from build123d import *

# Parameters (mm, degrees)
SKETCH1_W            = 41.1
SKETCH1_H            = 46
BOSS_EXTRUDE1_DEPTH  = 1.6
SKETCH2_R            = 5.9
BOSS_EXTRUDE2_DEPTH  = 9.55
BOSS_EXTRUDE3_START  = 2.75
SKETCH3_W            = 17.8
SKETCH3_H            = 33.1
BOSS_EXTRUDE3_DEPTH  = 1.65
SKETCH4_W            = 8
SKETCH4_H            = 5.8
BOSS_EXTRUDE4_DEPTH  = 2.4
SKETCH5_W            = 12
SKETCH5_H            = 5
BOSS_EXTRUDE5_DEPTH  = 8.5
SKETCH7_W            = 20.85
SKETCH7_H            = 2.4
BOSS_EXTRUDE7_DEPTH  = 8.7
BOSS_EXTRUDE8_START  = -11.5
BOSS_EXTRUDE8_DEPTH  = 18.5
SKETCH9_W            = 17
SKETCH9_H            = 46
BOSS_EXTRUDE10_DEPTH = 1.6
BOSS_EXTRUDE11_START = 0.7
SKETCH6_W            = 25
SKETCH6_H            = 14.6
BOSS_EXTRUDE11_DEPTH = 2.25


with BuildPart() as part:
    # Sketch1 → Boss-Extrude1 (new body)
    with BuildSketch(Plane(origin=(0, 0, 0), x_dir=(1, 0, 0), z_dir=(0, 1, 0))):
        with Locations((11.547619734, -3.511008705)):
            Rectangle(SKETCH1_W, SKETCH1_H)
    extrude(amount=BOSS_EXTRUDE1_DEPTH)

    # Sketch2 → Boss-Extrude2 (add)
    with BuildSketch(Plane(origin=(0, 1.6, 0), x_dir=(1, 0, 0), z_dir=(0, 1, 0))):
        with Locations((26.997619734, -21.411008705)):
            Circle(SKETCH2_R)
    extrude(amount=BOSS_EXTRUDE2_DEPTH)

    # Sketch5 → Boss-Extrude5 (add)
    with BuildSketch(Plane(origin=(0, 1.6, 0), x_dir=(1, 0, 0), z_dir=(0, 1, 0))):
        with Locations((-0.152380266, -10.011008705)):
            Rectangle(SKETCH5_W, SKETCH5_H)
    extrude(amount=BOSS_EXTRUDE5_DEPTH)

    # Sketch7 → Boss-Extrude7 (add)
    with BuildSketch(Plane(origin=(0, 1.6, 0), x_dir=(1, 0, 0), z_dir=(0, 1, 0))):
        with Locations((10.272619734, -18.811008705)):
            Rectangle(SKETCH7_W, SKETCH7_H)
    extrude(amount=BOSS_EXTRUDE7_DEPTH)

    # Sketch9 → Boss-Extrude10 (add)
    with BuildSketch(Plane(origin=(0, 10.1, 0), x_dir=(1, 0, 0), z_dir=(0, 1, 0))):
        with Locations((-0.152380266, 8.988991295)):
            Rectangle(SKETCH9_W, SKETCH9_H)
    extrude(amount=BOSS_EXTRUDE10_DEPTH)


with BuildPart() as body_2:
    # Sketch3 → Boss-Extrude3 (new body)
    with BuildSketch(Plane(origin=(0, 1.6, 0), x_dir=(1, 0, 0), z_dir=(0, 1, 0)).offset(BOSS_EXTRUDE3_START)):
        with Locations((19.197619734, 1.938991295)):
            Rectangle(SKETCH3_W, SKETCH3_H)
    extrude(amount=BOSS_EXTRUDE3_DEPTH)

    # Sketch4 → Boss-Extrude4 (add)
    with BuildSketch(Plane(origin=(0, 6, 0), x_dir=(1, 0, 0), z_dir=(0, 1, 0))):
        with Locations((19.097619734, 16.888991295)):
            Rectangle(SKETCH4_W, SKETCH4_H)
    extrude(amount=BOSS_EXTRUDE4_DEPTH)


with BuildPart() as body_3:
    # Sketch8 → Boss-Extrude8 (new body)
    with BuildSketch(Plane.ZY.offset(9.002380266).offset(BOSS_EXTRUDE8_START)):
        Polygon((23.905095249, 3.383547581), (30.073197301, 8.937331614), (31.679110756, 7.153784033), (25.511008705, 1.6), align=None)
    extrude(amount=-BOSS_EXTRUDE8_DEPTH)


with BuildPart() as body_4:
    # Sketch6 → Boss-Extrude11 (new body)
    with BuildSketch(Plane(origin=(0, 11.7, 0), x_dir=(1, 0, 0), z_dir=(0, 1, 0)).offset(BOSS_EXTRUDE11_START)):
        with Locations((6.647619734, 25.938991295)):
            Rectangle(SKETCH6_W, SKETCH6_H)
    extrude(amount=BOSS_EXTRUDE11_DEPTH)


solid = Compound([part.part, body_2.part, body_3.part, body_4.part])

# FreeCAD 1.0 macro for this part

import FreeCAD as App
import Part
import Sketcher
from FreeCAD import Vector
Q = App.Units.Quantity

doc = App.newDocument("Part")
params = doc.addObject("Spreadsheet::Sheet", "Params")
for row, (alias, value) in enumerate([
    ("sketch1_height", "46 mm"),
    ("sketch1_width", "41.1 mm"),
    ("pad1_length", "1.6 mm"),
    ("sketch2_diameter", "11.8 mm"),
    ("pad2_length", "9.55 mm"),
    ("sketch3_width", "12 mm"),
    ("sketch3_height", "5 mm"),
    ("pad3_length", "8.5 mm"),
    ("sketch4_height", "2.4 mm"),
    ("sketch4_width", "20.85 mm"),
    ("pad4_length", "8.7 mm"),
    ("sketch5_width", "17 mm"),
    ("sketch5_height", "46 mm"),
    ("pad5_length", "1.6 mm"),
    ("sketch6_width", "17.8 mm"),
    ("sketch6_height", "33.1 mm"),
    ("pad6_length", "1.65 mm"),
    ("sketch7_width", "8 mm"),
    ("sketch7_height", "5.8 mm"),
    ("pad7_length", "2.4 mm"),
    ("sketch8_length", "8.3 mm"),
    ("sketch8_length2", "2.4 mm"),
    ("pad8_length", "18.5 mm"),
    ("sketch9_width", "25 mm"),
    ("sketch9_height", "14.6 mm"),
    ("pad9_length", "2.25 mm"),
], start=1):
    params.set(f"A{row}", alias)
    params.set(f"B{row}", "=" + value)
    params.setAlias(f"B{row}", alias)

body = doc.addObject("PartDesign::Body", "Body")

sketch1 = body.newObject("Sketcher::SketchObject", "Sketch")
sketch1.AttachmentSupport = (doc.getObject("XZ_Plane"), [""])
sketch1.MapMode = "FlatFace"
sketch1.addGeometry(Part.LineSegment(Vector(-9.00238, -19.488991, 0), Vector(-9.00238, 26.511009, 0)), False)
sketch1.addGeometry(Part.LineSegment(Vector(-9.00238, 26.511009, 0), Vector(32.09762, 26.511009, 0)), False)
sketch1.addGeometry(Part.LineSegment(Vector(32.09762, 26.511009, 0), Vector(32.09762, -19.488991, 0)), False)
sketch1.addGeometry(Part.LineSegment(Vector(32.09762, -19.488991, 0), Vector(-9.00238, -19.488991, 0)), False)
sketch1.addConstraint(Sketcher.Constraint("Coincident", 0, 2, 1, 1))
sketch1.addConstraint(Sketcher.Constraint("Coincident", 1, 2, 2, 1))
sketch1.addConstraint(Sketcher.Constraint("Coincident", 2, 2, 3, 1))
sketch1.addConstraint(Sketcher.Constraint("Coincident", 3, 2, 0, 1))
sketch1.addConstraint(Sketcher.Constraint("Vertical", 0))
sketch1.addConstraint(Sketcher.Constraint("Horizontal", 1))
sketch1.addConstraint(Sketcher.Constraint("Vertical", 2))
sketch1.addConstraint(Sketcher.Constraint("Horizontal", 3))
sketch1.addConstraint(Sketcher.Constraint("DistanceY", 0, 1, 0, 2, 46.0))
sketch1.addConstraint(Sketcher.Constraint("DistanceX", 1, 1, 1, 2, 41.1))
sketch1.addConstraint(Sketcher.Constraint("DistanceX", 0, 2, -1, 1, 9.00238))
sketch1.addConstraint(Sketcher.Constraint("DistanceY", -1, 1, 0, 2, 26.511009))
sketch1.setExpression("Constraints[8]", "Params.sketch1_height")
sketch1.setExpression("Constraints[9]", "Params.sketch1_width")
pad1 = body.newObject("PartDesign::Pad", "Pad")
pad1.Profile = sketch1
pad1.setExpression("Length", "Params.pad1_length")
pad1.Reversed = True

sketch2 = body.newObject("Sketcher::SketchObject", "Sketch001")
sketch2.AttachmentSupport = (doc.getObject("XZ_Plane"), [""])
sketch2.MapMode = "FlatFace"
sketch2.AttachmentOffset = App.Placement(Vector(0, 0, -1.6), App.Rotation())
sketch2.addGeometry(Part.Circle(Vector(26.99762, 21.411009, 0), Vector(0, 0, 1), 5.9), False)
sketch2.addConstraint(Sketcher.Constraint("Diameter", 0, 11.8))
sketch2.addConstraint(Sketcher.Constraint("DistanceX", -1, 1, 0, 3, 26.99762))
sketch2.addConstraint(Sketcher.Constraint("DistanceY", -1, 1, 0, 3, 21.411009))
sketch2.setExpression("Constraints[0]", "Params.sketch2_diameter")
pad2 = body.newObject("PartDesign::Pad", "Pad001")
pad2.Profile = sketch2
pad2.setExpression("Length", "Params.pad2_length")
pad2.Reversed = True

sketch3 = body.newObject("Sketcher::SketchObject", "Sketch002")
sketch3.AttachmentSupport = (doc.getObject("XZ_Plane"), [""])
sketch3.MapMode = "FlatFace"
sketch3.AttachmentOffset = App.Placement(Vector(0, 0, -1.6), App.Rotation())
sketch3.addGeometry(Part.LineSegment(Vector(-6.15238, 7.511009, 0), Vector(-6.15238, 12.511009, 0)), False)
sketch3.addGeometry(Part.LineSegment(Vector(-6.15238, 12.511009, 0), Vector(5.84762, 12.511009, 0)), False)
sketch3.addGeometry(Part.LineSegment(Vector(5.84762, 12.511009, 0), Vector(5.84762, 7.511009, 0)), False)
sketch3.addGeometry(Part.LineSegment(Vector(5.84762, 7.511009, 0), Vector(-6.15238, 7.511009, 0)), False)
sketch3.addConstraint(Sketcher.Constraint("Coincident", 0, 2, 1, 1))
sketch3.addConstraint(Sketcher.Constraint("Coincident", 1, 2, 2, 1))
sketch3.addConstraint(Sketcher.Constraint("Coincident", 2, 2, 3, 1))
sketch3.addConstraint(Sketcher.Constraint("Coincident", 3, 2, 0, 1))
sketch3.addConstraint(Sketcher.Constraint("Vertical", 0))
sketch3.addConstraint(Sketcher.Constraint("Horizontal", 1))
sketch3.addConstraint(Sketcher.Constraint("Vertical", 2))
sketch3.addConstraint(Sketcher.Constraint("Horizontal", 3))
sketch3.addConstraint(Sketcher.Constraint("DistanceX", 1, 1, 1, 2, 12.0))
sketch3.addConstraint(Sketcher.Constraint("DistanceY", 0, 1, 0, 2, 5.0))
sketch3.addConstraint(Sketcher.Constraint("DistanceX", 0, 2, -1, 1, 6.15238))
sketch3.addConstraint(Sketcher.Constraint("DistanceY", -1, 1, 0, 2, 12.511009))
sketch3.setExpression("Constraints[8]", "Params.sketch3_width")
sketch3.setExpression("Constraints[9]", "Params.sketch3_height")
pad3 = body.newObject("PartDesign::Pad", "Pad002")
pad3.Profile = sketch3
pad3.setExpression("Length", "Params.pad3_length")
pad3.Reversed = True

sketch4 = body.newObject("Sketcher::SketchObject", "Sketch003")
sketch4.AttachmentSupport = (doc.getObject("XZ_Plane"), [""])
sketch4.MapMode = "FlatFace"
sketch4.AttachmentOffset = App.Placement(Vector(0, 0, -1.6), App.Rotation())
sketch4.addGeometry(Part.LineSegment(Vector(-0.15238, 17.611009, 0), Vector(-0.15238, 20.011009, 0)), False)
sketch4.addGeometry(Part.LineSegment(Vector(-0.15238, 20.011009, 0), Vector(20.69762, 20.011009, 0)), False)
sketch4.addGeometry(Part.LineSegment(Vector(20.69762, 20.011009, 0), Vector(20.69762, 17.611009, 0)), False)
sketch4.addGeometry(Part.LineSegment(Vector(20.69762, 17.611009, 0), Vector(-0.15238, 17.611009, 0)), False)
sketch4.addConstraint(Sketcher.Constraint("Coincident", 0, 2, 1, 1))
sketch4.addConstraint(Sketcher.Constraint("Coincident", 1, 2, 2, 1))
sketch4.addConstraint(Sketcher.Constraint("Coincident", 2, 2, 3, 1))
sketch4.addConstraint(Sketcher.Constraint("Coincident", 3, 2, 0, 1))
sketch4.addConstraint(Sketcher.Constraint("Vertical", 0))
sketch4.addConstraint(Sketcher.Constraint("Horizontal", 1))
sketch4.addConstraint(Sketcher.Constraint("Vertical", 2))
sketch4.addConstraint(Sketcher.Constraint("Horizontal", 3))
sketch4.addConstraint(Sketcher.Constraint("DistanceY", 0, 1, 0, 2, 2.4))
sketch4.addConstraint(Sketcher.Constraint("DistanceX", 1, 1, 1, 2, 20.85))
sketch4.addConstraint(Sketcher.Constraint("DistanceX", 0, 2, -1, 1, 0.15238))
sketch4.addConstraint(Sketcher.Constraint("DistanceY", -1, 1, 0, 2, 20.011009))
sketch4.setExpression("Constraints[8]", "Params.sketch4_height")
sketch4.setExpression("Constraints[9]", "Params.sketch4_width")
pad4 = body.newObject("PartDesign::Pad", "Pad003")
pad4.Profile = sketch4
pad4.setExpression("Length", "Params.pad4_length")
pad4.Reversed = True

sketch5 = body.newObject("Sketcher::SketchObject", "Sketch004")
sketch5.AttachmentSupport = (doc.getObject("XZ_Plane"), [""])
sketch5.MapMode = "FlatFace"
sketch5.AttachmentOffset = App.Placement(Vector(0, 0, -10.1), App.Rotation())
sketch5.addGeometry(Part.LineSegment(Vector(-8.65238, -31.988991, 0), Vector(-8.65238, 14.011009, 0)), False)
sketch5.addGeometry(Part.LineSegment(Vector(-8.65238, 14.011009, 0), Vector(8.34762, 14.011009, 0)), False)
sketch5.addGeometry(Part.LineSegment(Vector(8.34762, 14.011009, 0), Vector(8.34762, -31.988991, 0)), False)
sketch5.addGeometry(Part.LineSegment(Vector(8.34762, -31.988991, 0), Vector(-8.65238, -31.988991, 0)), False)
sketch5.addConstraint(Sketcher.Constraint("Coincident", 0, 2, 1, 1))
sketch5.addConstraint(Sketcher.Constraint("Coincident", 1, 2, 2, 1))
sketch5.addConstraint(Sketcher.Constraint("Coincident", 2, 2, 3, 1))
sketch5.addConstraint(Sketcher.Constraint("Coincident", 3, 2, 0, 1))
sketch5.addConstraint(Sketcher.Constraint("Vertical", 0))
sketch5.addConstraint(Sketcher.Constraint("Horizontal", 1))
sketch5.addConstraint(Sketcher.Constraint("Vertical", 2))
sketch5.addConstraint(Sketcher.Constraint("Horizontal", 3))
sketch5.addConstraint(Sketcher.Constraint("DistanceX", 1, 1, 1, 2, 17.0))
sketch5.addConstraint(Sketcher.Constraint("DistanceY", 0, 1, 0, 2, 46.0))
sketch5.addConstraint(Sketcher.Constraint("DistanceX", 0, 2, -1, 1, 8.65238))
sketch5.addConstraint(Sketcher.Constraint("DistanceY", -1, 1, 0, 2, 14.011009))
sketch5.setExpression("Constraints[8]", "Params.sketch5_width")
sketch5.setExpression("Constraints[9]", "Params.sketch5_height")
pad5 = body.newObject("PartDesign::Pad", "Pad004")
pad5.Profile = sketch5
pad5.setExpression("Length", "Params.pad5_length")
pad5.Reversed = True
body2 = doc.addObject("PartDesign::Body", "Body001")

sketch6 = body2.newObject("Sketcher::SketchObject", "Sketch005")
sketch6.AttachmentSupport = (doc.getObject("XZ_Plane001"), [""])
sketch6.MapMode = "FlatFace"
sketch6.AttachmentOffset = App.Placement(Vector(0, 0, -4.35), App.Rotation())
sketch6.addGeometry(Part.LineSegment(Vector(10.29762, -18.488991, 0), Vector(10.29762, 14.611009, 0)), False)
sketch6.addGeometry(Part.LineSegment(Vector(10.29762, 14.611009, 0), Vector(28.09762, 14.611009, 0)), False)
sketch6.addGeometry(Part.LineSegment(Vector(28.09762, 14.611009, 0), Vector(28.09762, -18.488991, 0)), False)
sketch6.addGeometry(Part.LineSegment(Vector(28.09762, -18.488991, 0), Vector(10.29762, -18.488991, 0)), False)
sketch6.addConstraint(Sketcher.Constraint("Coincident", 0, 2, 1, 1))
sketch6.addConstraint(Sketcher.Constraint("Coincident", 1, 2, 2, 1))
sketch6.addConstraint(Sketcher.Constraint("Coincident", 2, 2, 3, 1))
sketch6.addConstraint(Sketcher.Constraint("Coincident", 3, 2, 0, 1))
sketch6.addConstraint(Sketcher.Constraint("Vertical", 0))
sketch6.addConstraint(Sketcher.Constraint("Horizontal", 1))
sketch6.addConstraint(Sketcher.Constraint("Vertical", 2))
sketch6.addConstraint(Sketcher.Constraint("Horizontal", 3))
sketch6.addConstraint(Sketcher.Constraint("DistanceX", 1, 1, 1, 2, 17.8))
sketch6.addConstraint(Sketcher.Constraint("DistanceY", 0, 1, 0, 2, 33.1))
sketch6.addConstraint(Sketcher.Constraint("DistanceX", -1, 1, 0, 2, 10.29762))
sketch6.addConstraint(Sketcher.Constraint("DistanceY", -1, 1, 0, 2, 14.611009))
sketch6.setExpression("Constraints[8]", "Params.sketch6_width")
sketch6.setExpression("Constraints[9]", "Params.sketch6_height")
pad6 = body2.newObject("PartDesign::Pad", "Pad005")
pad6.Profile = sketch6
pad6.setExpression("Length", "Params.pad6_length")
pad6.Reversed = True

sketch7 = body2.newObject("Sketcher::SketchObject", "Sketch006")
sketch7.AttachmentSupport = (doc.getObject("XZ_Plane001"), [""])
sketch7.MapMode = "FlatFace"
sketch7.AttachmentOffset = App.Placement(Vector(0, 0, -6), App.Rotation())
sketch7.addGeometry(Part.LineSegment(Vector(15.09762, -19.788991, 0), Vector(15.09762, -13.988991, 0)), False)
sketch7.addGeometry(Part.LineSegment(Vector(15.09762, -13.988991, 0), Vector(23.09762, -13.988991, 0)), False)
sketch7.addGeometry(Part.LineSegment(Vector(23.09762, -13.988991, 0), Vector(23.09762, -19.788991, 0)), False)
sketch7.addGeometry(Part.LineSegment(Vector(23.09762, -19.788991, 0), Vector(15.09762, -19.788991, 0)), False)
sketch7.addConstraint(Sketcher.Constraint("Coincident", 0, 2, 1, 1))
sketch7.addConstraint(Sketcher.Constraint("Coincident", 1, 2, 2, 1))
sketch7.addConstraint(Sketcher.Constraint("Coincident", 2, 2, 3, 1))
sketch7.addConstraint(Sketcher.Constraint("Coincident", 3, 2, 0, 1))
sketch7.addConstraint(Sketcher.Constraint("Vertical", 0))
sketch7.addConstraint(Sketcher.Constraint("Horizontal", 1))
sketch7.addConstraint(Sketcher.Constraint("Vertical", 2))
sketch7.addConstraint(Sketcher.Constraint("Horizontal", 3))
sketch7.addConstraint(Sketcher.Constraint("DistanceX", 1, 1, 1, 2, 8.0))
sketch7.addConstraint(Sketcher.Constraint("DistanceY", 0, 1, 0, 2, 5.8))
sketch7.addConstraint(Sketcher.Constraint("DistanceX", -1, 1, 0, 2, 15.09762))
sketch7.addConstraint(Sketcher.Constraint("DistanceY", 0, 2, -1, 1, 13.988991))
sketch7.setExpression("Constraints[8]", "Params.sketch7_width")
sketch7.setExpression("Constraints[9]", "Params.sketch7_height")
pad7 = body2.newObject("PartDesign::Pad", "Pad006")
pad7.Profile = sketch7
pad7.setExpression("Length", "Params.pad7_length")
pad7.Reversed = True
body3 = doc.addObject("PartDesign::Body", "Body002")

sketch8 = body3.newObject("Sketcher::SketchObject", "Sketch007")
sketch8.AttachmentSupport = (doc.getObject("YZ_Plane002"), [""])
sketch8.MapMode = "FlatFace"
sketch8.AttachmentOffset = App.Placement(Vector(0, 0, 2.49762), App.Rotation())
sketch8.addGeometry(Part.LineSegment(Vector(8.937332, 30.073197, 0), Vector(3.383548, 23.905095, 0)), False)
sketch8.addGeometry(Part.LineSegment(Vector(3.383548, 23.905095, 0), Vector(1.6, 25.511009, 0)), False)
sketch8.addGeometry(Part.LineSegment(Vector(1.6, 25.511009, 0), Vector(7.153784, 31.679111, 0)), False)
sketch8.addGeometry(Part.LineSegment(Vector(7.153784, 31.679111, 0), Vector(8.937332, 30.073197, 0)), False)
sketch8.addConstraint(Sketcher.Constraint("Coincident", 0, 2, 1, 1))
sketch8.addConstraint(Sketcher.Constraint("Coincident", 1, 2, 2, 1))
sketch8.addConstraint(Sketcher.Constraint("Coincident", 2, 2, 3, 1))
sketch8.addConstraint(Sketcher.Constraint("Coincident", 3, 2, 0, 1))
sketch8.addConstraint(Sketcher.Constraint("Perpendicular", 0, 1))
sketch8.addConstraint(Sketcher.Constraint("Perpendicular", 1, 2))
sketch8.addConstraint(Sketcher.Constraint("Perpendicular", 2, 3))
sketch8.addConstraint(Sketcher.Constraint("Angle", 0, Q("-132 deg")))
sketch8.addConstraint(Sketcher.Constraint("Distance", 0, 8.3))
sketch8.addConstraint(Sketcher.Constraint("Distance", 1, 2.4))
sketch8.addConstraint(Sketcher.Constraint("DistanceX", -1, 1, 1, 2, 1.6))
sketch8.addConstraint(Sketcher.Constraint("DistanceY", -1, 1, 1, 2, 25.511009))
sketch8.setExpression("Constraints[8]", "Params.sketch8_length")
sketch8.setExpression("Constraints[9]", "Params.sketch8_length2")
pad8 = body3.newObject("PartDesign::Pad", "Pad007")
pad8.Profile = sketch8
pad8.setExpression("Length", "Params.pad8_length")
body4 = doc.addObject("PartDesign::Body", "Body003")

sketch9 = body4.newObject("Sketcher::SketchObject", "Sketch008")
sketch9.AttachmentSupport = (doc.getObject("XZ_Plane003"), [""])
sketch9.MapMode = "FlatFace"
sketch9.AttachmentOffset = App.Placement(Vector(0, 0, -12.4), App.Rotation())
sketch9.addGeometry(Part.LineSegment(Vector(-5.85238, -33.238991, 0), Vector(-5.85238, -18.638991, 0)), False)
sketch9.addGeometry(Part.LineSegment(Vector(-5.85238, -18.638991, 0), Vector(19.14762, -18.638991, 0)), False)
sketch9.addGeometry(Part.LineSegment(Vector(19.14762, -18.638991, 0), Vector(19.14762, -33.238991, 0)), False)
sketch9.addGeometry(Part.LineSegment(Vector(19.14762, -33.238991, 0), Vector(-5.85238, -33.238991, 0)), False)
sketch9.addConstraint(Sketcher.Constraint("Coincident", 0, 2, 1, 1))
sketch9.addConstraint(Sketcher.Constraint("Coincident", 1, 2, 2, 1))
sketch9.addConstraint(Sketcher.Constraint("Coincident", 2, 2, 3, 1))
sketch9.addConstraint(Sketcher.Constraint("Coincident", 3, 2, 0, 1))
sketch9.addConstraint(Sketcher.Constraint("Vertical", 0))
sketch9.addConstraint(Sketcher.Constraint("Horizontal", 1))
sketch9.addConstraint(Sketcher.Constraint("Vertical", 2))
sketch9.addConstraint(Sketcher.Constraint("Horizontal", 3))
sketch9.addConstraint(Sketcher.Constraint("DistanceX", 1, 1, 1, 2, 25.0))
sketch9.addConstraint(Sketcher.Constraint("DistanceY", 0, 1, 0, 2, 14.6))
sketch9.addConstraint(Sketcher.Constraint("DistanceX", 0, 2, -1, 1, 5.85238))
sketch9.addConstraint(Sketcher.Constraint("DistanceY", 0, 2, -1, 1, 18.638991))
sketch9.setExpression("Constraints[8]", "Params.sketch9_width")
sketch9.setExpression("Constraints[9]", "Params.sketch9_height")
pad9 = body4.newObject("PartDesign::Pad", "Pad008")
pad9.Profile = sketch9
pad9.setExpression("Length", "Params.pad9_length")
pad9.Reversed = True

doc.recompute()
